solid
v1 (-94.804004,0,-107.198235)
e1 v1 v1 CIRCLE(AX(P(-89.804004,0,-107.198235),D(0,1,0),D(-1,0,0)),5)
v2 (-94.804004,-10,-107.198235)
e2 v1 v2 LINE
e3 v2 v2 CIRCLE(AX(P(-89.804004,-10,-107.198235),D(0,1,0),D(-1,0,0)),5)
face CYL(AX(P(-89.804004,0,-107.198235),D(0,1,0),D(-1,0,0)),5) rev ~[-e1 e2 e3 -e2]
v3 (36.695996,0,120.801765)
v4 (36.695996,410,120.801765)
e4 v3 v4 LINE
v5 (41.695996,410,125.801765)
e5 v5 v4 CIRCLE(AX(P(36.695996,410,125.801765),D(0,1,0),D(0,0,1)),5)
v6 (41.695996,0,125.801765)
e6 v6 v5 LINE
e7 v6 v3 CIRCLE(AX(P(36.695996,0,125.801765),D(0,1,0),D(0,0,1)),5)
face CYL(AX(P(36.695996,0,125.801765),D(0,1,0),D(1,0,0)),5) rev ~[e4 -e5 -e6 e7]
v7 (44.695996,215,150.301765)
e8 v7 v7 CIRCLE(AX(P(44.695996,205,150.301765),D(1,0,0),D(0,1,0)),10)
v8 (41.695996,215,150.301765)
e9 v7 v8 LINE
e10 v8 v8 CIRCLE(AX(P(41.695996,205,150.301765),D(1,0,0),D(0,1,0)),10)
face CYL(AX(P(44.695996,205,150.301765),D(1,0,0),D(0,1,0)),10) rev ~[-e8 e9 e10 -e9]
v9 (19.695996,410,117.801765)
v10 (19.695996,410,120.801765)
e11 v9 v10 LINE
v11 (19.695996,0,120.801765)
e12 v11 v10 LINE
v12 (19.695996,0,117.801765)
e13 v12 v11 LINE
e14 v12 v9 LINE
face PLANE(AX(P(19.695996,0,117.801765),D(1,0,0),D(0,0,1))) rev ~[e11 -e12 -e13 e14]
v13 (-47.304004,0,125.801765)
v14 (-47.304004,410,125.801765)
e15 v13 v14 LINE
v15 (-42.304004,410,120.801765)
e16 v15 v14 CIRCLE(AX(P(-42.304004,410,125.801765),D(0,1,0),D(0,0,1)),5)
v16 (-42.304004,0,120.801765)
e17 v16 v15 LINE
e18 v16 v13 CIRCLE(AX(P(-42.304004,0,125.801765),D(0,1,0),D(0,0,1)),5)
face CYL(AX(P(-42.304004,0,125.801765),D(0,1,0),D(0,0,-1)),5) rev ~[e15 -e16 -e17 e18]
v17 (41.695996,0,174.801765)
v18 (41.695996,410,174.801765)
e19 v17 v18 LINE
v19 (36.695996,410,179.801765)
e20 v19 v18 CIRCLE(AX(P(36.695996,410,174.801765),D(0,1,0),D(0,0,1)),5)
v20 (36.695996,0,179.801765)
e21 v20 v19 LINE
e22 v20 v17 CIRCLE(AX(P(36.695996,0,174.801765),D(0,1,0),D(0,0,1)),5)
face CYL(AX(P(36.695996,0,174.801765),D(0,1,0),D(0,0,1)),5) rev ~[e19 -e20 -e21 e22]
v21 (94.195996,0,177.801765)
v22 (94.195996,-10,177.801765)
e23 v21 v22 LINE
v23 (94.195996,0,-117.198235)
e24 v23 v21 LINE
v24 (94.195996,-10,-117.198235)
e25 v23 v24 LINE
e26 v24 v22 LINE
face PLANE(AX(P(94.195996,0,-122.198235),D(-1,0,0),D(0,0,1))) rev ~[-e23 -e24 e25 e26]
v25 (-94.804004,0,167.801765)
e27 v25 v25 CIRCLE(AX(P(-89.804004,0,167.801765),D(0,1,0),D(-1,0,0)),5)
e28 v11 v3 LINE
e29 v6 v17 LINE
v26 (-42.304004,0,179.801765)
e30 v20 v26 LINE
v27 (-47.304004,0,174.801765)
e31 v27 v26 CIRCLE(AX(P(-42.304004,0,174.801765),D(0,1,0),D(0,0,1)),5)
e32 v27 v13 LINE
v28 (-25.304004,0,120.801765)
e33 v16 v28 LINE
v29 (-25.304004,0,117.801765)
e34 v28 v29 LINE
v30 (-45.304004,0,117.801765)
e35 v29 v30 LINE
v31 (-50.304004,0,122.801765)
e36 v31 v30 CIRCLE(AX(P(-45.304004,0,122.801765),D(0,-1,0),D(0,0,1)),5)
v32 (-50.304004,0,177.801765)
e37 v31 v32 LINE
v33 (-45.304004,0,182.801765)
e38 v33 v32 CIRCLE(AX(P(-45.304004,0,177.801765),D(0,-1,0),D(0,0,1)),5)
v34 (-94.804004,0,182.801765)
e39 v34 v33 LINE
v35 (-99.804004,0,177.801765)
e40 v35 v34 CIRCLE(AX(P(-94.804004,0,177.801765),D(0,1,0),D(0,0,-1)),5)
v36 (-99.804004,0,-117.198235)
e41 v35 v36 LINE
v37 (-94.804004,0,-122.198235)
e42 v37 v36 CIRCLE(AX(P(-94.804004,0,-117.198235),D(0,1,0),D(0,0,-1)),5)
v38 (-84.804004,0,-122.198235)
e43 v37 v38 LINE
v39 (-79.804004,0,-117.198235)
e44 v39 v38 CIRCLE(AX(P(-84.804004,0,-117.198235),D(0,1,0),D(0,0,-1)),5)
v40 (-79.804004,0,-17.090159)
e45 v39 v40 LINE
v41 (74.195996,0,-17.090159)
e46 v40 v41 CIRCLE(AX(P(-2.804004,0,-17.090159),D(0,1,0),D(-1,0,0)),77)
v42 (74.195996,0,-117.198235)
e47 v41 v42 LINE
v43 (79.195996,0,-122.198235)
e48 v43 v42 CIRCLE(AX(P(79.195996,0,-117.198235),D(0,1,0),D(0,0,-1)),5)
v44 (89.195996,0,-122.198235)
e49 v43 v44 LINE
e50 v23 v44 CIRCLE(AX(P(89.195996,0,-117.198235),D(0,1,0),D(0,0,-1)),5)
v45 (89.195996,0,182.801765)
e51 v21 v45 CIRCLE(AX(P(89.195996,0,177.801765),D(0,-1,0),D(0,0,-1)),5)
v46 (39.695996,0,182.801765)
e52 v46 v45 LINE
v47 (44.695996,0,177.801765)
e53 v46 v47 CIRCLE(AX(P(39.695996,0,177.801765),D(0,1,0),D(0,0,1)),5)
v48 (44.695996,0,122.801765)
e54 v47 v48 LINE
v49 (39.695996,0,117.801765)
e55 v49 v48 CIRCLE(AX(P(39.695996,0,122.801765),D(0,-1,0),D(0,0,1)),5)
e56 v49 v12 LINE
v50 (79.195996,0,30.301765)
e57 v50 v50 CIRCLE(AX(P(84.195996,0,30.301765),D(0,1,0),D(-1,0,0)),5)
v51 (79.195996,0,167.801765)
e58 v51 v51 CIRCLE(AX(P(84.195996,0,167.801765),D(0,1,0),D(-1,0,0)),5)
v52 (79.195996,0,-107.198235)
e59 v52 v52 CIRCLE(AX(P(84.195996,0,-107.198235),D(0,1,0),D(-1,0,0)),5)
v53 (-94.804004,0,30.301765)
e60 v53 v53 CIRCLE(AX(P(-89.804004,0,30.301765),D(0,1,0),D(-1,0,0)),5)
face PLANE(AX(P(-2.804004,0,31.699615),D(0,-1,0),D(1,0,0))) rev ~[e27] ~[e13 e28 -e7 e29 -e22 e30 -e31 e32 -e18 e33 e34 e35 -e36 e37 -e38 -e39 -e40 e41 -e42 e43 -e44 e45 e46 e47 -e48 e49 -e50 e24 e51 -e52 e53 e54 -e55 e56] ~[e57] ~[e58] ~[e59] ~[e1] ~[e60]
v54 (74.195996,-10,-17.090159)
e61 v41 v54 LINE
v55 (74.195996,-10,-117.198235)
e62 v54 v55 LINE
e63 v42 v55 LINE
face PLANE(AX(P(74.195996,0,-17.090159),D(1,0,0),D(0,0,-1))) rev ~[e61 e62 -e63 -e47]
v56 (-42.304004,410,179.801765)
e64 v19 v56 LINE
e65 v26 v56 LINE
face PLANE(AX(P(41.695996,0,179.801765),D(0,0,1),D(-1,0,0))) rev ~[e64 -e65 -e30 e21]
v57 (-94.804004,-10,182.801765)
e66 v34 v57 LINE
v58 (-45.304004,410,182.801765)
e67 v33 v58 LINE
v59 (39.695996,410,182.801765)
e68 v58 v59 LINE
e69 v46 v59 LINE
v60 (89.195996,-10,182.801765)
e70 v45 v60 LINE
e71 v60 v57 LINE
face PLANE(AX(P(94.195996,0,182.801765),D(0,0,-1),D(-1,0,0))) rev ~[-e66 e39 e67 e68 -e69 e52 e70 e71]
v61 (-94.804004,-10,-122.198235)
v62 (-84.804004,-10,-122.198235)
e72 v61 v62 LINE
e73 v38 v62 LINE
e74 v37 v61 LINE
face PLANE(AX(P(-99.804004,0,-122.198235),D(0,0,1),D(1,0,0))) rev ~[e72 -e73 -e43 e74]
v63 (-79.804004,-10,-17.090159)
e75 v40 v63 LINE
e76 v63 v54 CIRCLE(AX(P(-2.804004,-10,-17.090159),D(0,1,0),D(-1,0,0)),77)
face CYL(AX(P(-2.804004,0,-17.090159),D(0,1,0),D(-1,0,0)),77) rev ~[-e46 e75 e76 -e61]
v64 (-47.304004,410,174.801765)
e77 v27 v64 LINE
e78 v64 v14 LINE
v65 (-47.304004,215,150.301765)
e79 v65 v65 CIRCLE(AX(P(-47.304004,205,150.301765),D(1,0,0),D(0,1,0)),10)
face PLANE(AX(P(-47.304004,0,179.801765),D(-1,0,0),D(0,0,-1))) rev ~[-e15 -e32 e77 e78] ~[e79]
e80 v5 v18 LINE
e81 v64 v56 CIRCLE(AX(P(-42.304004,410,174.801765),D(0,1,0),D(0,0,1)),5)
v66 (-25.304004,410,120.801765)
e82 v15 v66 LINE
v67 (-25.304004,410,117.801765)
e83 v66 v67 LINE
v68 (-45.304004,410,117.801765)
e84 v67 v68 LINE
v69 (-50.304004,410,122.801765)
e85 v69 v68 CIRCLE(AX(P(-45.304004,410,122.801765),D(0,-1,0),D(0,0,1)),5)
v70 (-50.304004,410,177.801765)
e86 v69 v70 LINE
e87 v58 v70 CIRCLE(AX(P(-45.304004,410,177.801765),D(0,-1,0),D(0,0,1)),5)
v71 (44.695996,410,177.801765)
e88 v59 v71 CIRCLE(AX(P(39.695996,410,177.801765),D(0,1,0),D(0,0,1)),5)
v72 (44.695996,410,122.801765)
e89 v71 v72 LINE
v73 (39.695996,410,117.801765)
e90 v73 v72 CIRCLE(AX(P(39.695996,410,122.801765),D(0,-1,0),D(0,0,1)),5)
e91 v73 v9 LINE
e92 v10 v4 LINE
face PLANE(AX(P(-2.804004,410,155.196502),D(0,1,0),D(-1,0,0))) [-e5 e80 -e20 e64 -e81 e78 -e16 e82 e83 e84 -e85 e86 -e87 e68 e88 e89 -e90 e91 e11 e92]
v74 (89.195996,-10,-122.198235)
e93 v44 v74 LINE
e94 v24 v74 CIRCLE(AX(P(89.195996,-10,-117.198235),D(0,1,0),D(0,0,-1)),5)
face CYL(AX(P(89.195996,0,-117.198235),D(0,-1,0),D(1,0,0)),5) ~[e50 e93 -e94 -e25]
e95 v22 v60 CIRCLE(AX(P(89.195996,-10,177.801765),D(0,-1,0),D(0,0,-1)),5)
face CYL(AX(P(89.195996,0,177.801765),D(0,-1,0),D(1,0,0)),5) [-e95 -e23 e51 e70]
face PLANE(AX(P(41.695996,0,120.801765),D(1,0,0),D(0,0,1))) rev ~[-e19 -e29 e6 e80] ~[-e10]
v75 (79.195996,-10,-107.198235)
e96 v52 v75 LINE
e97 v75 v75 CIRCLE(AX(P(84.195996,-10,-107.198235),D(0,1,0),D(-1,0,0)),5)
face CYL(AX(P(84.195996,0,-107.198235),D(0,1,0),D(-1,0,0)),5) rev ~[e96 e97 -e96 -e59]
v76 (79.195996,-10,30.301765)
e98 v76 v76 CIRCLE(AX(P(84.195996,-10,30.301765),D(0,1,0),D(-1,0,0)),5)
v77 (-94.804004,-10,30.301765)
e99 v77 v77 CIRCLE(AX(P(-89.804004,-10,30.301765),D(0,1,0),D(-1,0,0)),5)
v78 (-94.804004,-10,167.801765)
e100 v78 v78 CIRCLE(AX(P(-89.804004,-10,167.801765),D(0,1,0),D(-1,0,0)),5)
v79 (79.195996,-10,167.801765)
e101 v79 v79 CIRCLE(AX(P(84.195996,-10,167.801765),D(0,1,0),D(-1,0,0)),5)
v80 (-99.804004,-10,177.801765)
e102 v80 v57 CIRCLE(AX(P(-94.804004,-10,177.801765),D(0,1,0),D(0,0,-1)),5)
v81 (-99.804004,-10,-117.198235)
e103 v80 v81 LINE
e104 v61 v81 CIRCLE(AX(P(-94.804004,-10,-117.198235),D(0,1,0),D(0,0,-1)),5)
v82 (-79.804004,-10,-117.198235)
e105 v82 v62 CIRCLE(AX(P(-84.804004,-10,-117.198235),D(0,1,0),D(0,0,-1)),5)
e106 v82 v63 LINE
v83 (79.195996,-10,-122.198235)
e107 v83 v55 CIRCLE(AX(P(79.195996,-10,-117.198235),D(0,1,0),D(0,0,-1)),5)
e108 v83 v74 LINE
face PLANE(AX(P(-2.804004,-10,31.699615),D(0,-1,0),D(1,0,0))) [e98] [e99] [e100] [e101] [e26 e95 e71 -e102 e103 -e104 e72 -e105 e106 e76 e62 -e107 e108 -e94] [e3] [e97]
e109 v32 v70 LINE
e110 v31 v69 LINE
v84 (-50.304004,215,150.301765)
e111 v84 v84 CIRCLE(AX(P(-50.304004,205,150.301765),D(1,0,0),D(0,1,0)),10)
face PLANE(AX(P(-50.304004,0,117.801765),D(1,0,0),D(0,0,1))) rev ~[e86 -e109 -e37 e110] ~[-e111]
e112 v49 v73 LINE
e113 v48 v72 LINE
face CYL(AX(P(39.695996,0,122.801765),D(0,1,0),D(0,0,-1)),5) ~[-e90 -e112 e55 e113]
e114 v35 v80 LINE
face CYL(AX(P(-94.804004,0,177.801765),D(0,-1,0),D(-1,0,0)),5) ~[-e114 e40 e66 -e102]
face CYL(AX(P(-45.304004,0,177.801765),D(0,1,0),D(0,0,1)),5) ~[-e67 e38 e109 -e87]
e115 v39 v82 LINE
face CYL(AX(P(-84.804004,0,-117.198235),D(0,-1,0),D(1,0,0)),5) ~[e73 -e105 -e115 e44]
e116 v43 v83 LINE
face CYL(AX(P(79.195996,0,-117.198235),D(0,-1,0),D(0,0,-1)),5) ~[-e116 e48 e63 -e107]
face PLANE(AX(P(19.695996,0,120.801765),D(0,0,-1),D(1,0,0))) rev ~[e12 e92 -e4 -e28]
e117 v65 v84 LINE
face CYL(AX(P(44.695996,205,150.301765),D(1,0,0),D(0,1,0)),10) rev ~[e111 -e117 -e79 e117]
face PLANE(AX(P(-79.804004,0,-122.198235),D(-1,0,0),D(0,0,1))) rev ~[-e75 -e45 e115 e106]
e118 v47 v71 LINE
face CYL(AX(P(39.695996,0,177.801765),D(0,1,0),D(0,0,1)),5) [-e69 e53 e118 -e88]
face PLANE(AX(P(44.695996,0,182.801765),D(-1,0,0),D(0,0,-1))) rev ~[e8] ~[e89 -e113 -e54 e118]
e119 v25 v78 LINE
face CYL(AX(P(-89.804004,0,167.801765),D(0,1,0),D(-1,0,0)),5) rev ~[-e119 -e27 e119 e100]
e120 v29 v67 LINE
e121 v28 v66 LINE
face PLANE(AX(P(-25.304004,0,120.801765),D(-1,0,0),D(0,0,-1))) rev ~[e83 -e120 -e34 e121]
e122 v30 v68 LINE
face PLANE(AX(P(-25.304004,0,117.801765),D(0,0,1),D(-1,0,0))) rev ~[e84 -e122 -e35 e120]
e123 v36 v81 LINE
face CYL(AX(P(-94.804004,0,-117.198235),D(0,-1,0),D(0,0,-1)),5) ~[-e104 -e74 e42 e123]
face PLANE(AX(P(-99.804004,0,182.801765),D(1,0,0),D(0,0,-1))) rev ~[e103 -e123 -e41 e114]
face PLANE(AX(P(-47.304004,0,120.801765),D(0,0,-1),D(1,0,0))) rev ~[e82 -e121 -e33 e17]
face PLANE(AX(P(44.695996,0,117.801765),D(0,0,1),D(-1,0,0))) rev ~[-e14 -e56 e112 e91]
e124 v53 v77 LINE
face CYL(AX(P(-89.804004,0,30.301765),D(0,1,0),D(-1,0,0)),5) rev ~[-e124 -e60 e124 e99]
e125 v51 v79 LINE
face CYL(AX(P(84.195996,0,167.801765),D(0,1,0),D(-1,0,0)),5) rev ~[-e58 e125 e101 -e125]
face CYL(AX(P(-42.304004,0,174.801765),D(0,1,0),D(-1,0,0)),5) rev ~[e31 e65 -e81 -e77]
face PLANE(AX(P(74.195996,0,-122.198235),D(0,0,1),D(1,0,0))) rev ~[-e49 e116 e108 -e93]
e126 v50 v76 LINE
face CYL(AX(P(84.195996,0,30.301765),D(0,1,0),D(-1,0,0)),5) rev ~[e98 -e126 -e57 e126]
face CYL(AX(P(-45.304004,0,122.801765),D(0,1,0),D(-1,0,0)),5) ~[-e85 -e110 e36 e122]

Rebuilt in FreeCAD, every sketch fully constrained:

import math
import FreeCAD as App
import Part
import Sketcher
Q = App.Units.Quantity


def edges_at(feature, points):
    """Names of the edges that pass closest to the given points."""
    edges = feature.Shape.Edges
    near = lambda p: min(range(len(edges)), key=lambda i: edges[i].distToShape(Part.Vertex(*p))[0])
    return sorted({f"Edge{near(p) + 1}" for p in points})

doc = App.newDocument("Part")
body = doc.addObject("PartDesign::Body", "Body")

# Sketch on XZ plane
sketch1 = body.newObject("Sketcher::SketchObject", "Sketch")
sketch1.AttachmentSupport = (doc.getObject("XZ_Plane"), [""])
sketch1.MapMode = "FlatFace"
sketch1.addGeometry([
    Part.LineSegment(App.Vector(-80, -122, 0), App.Vector(-80, -17, 0)),  # 0
    Part.ArcOfCircle(Part.Circle(App.Vector(-3, -17, 0), App.Vector(0, 0, 1), 77), math.radians(0), math.radians(180)),  # 1
    Part.LineSegment(App.Vector(74, -17, 0), App.Vector(74, -122, 0)),  # 2
    Part.LineSegment(App.Vector(74, -122, 0), App.Vector(94, -122, 0)),  # 3
    Part.LineSegment(App.Vector(94, -122, 0), App.Vector(94, 183, 0)),  # 4
    Part.LineSegment(App.Vector(94, 183, 0), App.Vector(-100, 183, 0)),  # 5
    Part.LineSegment(App.Vector(-100, 183, 0), App.Vector(-100, -122, 0)),  # 6
    Part.LineSegment(App.Vector(-100, -122, 0), App.Vector(-80, -122, 0)),  # 7
], False)
sketch1.addConstraint([
    Sketcher.Constraint("Tangent", 0, 2, 1, 2),
    Sketcher.Constraint("Tangent", 1, 1, 2, 1),
    Sketcher.Constraint("Coincident", 2, 2, 3, 1),
    Sketcher.Constraint("Coincident", 3, 2, 4, 1),
    Sketcher.Constraint("Coincident", 4, 2, 5, 1),
    Sketcher.Constraint("Coincident", 5, 2, 6, 1),
    Sketcher.Constraint("Coincident", 6, 2, 7, 1),
    Sketcher.Constraint("Coincident", 7, 2, 0, 1),
    Sketcher.Constraint("Vertical", 0),
    Sketcher.Constraint("Vertical", 2),
    Sketcher.Constraint("Horizontal", 3),
    Sketcher.Constraint("Vertical", 4),
    Sketcher.Constraint("Horizontal", 5),
    Sketcher.Constraint("Vertical", 6),
    Sketcher.Constraint("Horizontal", 7),
    Sketcher.Constraint("Horizontal", 3, 2, 6, 2),
    Sketcher.Constraint("Equal", 3, 7),
    Sketcher.Constraint("Radius", 1, Q("77 mm")),
    Sketcher.Constraint("DistanceX", 3, 1, 3, 2, Q("20 mm")),
    Sketcher.Constraint("DistanceY", 4, 1, 4, 2, Q("305 mm")),
    Sketcher.Constraint("DistanceY", 0, 1, 0, 2, Q("105.108076 mm")),
    Sketcher.Constraint("DistanceY", 1, 3, -1, 1, Q("17.090159 mm")),
    Sketcher.Constraint("DistanceX", 1, 3, -1, 1, Q("2.804004 mm")),
])
pad1 = body.newObject("PartDesign::Pad", "Pad")
pad1.Profile = sketch1
pad1.Length = 10

# Sketch on XZ plane
sketch2 = body.newObject("Sketcher::SketchObject", "Sketch001")
sketch2.AttachmentSupport = (doc.getObject("XZ_Plane"), [""])
sketch2.MapMode = "FlatFace"
sketch2.addGeometry([
    Part.LineSegment(App.Vector(-50.3, 117.8, 0), App.Vector(-50.3, 182.8, 0)),  # 0
    Part.LineSegment(App.Vector(-50.3, 182.8, 0), App.Vector(44.7, 182.8, 0)),  # 1
    Part.LineSegment(App.Vector(44.7, 182.8, 0), App.Vector(44.7, 117.8, 0)),  # 2
    Part.LineSegment(App.Vector(44.7, 117.8, 0), App.Vector(19.7, 117.8, 0)),  # 3
    Part.LineSegment(App.Vector(19.7, 117.8, 0), App.Vector(19.7, 120.8, 0)),  # 4
    Part.LineSegment(App.Vector(19.7, 120.8, 0), App.Vector(41.7, 120.8, 0)),  # 5
    Part.LineSegment(App.Vector(41.7, 120.8, 0), App.Vector(41.7, 179.8, 0)),  # 6
    Part.LineSegment(App.Vector(41.7, 179.8, 0), App.Vector(-47.3, 179.8, 0)),  # 7
    Part.LineSegment(App.Vector(-47.3, 179.8, 0), App.Vector(-47.3, 120.8, 0)),  # 8
    Part.LineSegment(App.Vector(-47.3, 120.8, 0), App.Vector(-25.3, 120.8, 0)),  # 9
    Part.LineSegment(App.Vector(-25.3, 120.8, 0), App.Vector(-25.3, 117.8, 0)),  # 10
    Part.LineSegment(App.Vector(-25.3, 117.8, 0), App.Vector(-50.3, 117.8, 0)),  # 11
], False)
sketch2.addConstraint([
    Sketcher.Constraint("Coincident", 0, 2, 1, 1),
    Sketcher.Constraint("Coincident", 1, 2, 2, 1),
    Sketcher.Constraint("Coincident", 2, 2, 3, 1),
    Sketcher.Constraint("Coincident", 3, 2, 4, 1),
    Sketcher.Constraint("Coincident", 4, 2, 5, 1),
    Sketcher.Constraint("Coincident", 5, 2, 6, 1),
    Sketcher.Constraint("Coincident", 6, 2, 7, 1),
    Sketcher.Constraint("Coincident", 7, 2, 8, 1),
    Sketcher.Constraint("Coincident", 8, 2, 9, 1),
    Sketcher.Constraint("Coincident", 9, 2, 10, 1),
    Sketcher.Constraint("Coincident", 10, 2, 11, 1),
    Sketcher.Constraint("Coincident", 11, 2, 0, 1),
    Sketcher.Constraint("Vertical", 0),
    Sketcher.Constraint("Horizontal", 1),
    Sketcher.Constraint("Vertical", 2),
    Sketcher.Constraint("Horizontal", 3),
    Sketcher.Constraint("Vertical", 4),
    Sketcher.Constraint("Horizontal", 5),
    Sketcher.Constraint("Vertical", 6),
    Sketcher.Constraint("Horizontal", 7),
    Sketcher.Constraint("Vertical", 8),
    Sketcher.Constraint("Horizontal", 9),
    Sketcher.Constraint("Vertical", 10),
    Sketcher.Constraint("Horizontal", 11),
    Sketcher.Constraint("Horizontal", 5, 2, 8, 2),
    Sketcher.Constraint("Horizontal", 3, 2, 10, 2),
    Sketcher.Constraint("Equal", 5, 9),
    Sketcher.Constraint("Equal", 3, 11),
    Sketcher.Constraint("DistanceX", 1, 1, 1, 2, Q("95 mm")),
    Sketcher.Constraint("DistanceX", 3, 2, 3, 1, Q("25 mm")),
    Sketcher.Constraint("DistanceX", 5, 1, 5, 2, Q("22 mm")),
    Sketcher.Constraint("DistanceY", 0, 1, 0, 2, Q("65 mm")),
    Sketcher.Constraint("DistanceY", 4, 1, 4, 2, Q("3 mm")),
    Sketcher.Constraint("DistanceY", 6, 1, 6, 2, Q("59 mm")),
    Sketcher.Constraint("DistanceX", 0, 2, -1, 1, Q("50.304004 mm")),
    Sketcher.Constraint("DistanceY", -1, 1, 0, 2, Q("182.801765 mm")),
])
pad2 = body.newObject("PartDesign::Pad", "Pad001")
pad2.Profile = sketch2
pad2.Length = 410
pad2.Reversed = True
doc.recompute()

fillet = body.newObject("PartDesign::Fillet", "Fillet")
fillet.Base = (pad2, edges_at(pad2, [
    (44.696, 205, 182.802),
    (-50.304, 205, 182.802),
    (-50.304, 205, 117.802),
    (44.696, 205, 117.802),
    (-47.304, 205, 179.802),
    (-47.304, 205, 120.802),
    (41.696, 205, 120.802),
    (41.696, 205, 179.802),
]))
fillet.Radius = 5
doc.recompute()

fillet2 = body.newObject("PartDesign::Fillet", "Fillet001")
fillet2.Base = (fillet, edges_at(fillet, [
    (-99.804, -5, -122.198),
    (-99.804, -5, 182.802),
    (94.196, -5, 182.802),
    (94.196, -5, -122.198),
    (74.196, -5, -122.198),
    (-79.804, -5, -122.198),
]))
fillet2.Radius = 5

# Sketch on XZ plane
sketch3 = body.newObject("Sketcher::SketchObject", "Sketch002")
sketch3.AttachmentSupport = (doc.getObject("XZ_Plane"), [""])
sketch3.MapMode = "FlatFace"
sketch3.addGeometry([
    Part.Circle(App.Vector(84, 168, 0), App.Vector(0, 0, 1), 5),  # 0
    Part.Circle(App.Vector(84, 30, 0), App.Vector(0, 0, 1), 5),  # 1
    Part.Circle(App.Vector(84, -107, 0), App.Vector(0, 0, 1), 5),  # 2
    Part.Circle(App.Vector(-90, 168, 0), App.Vector(0, 0, 1), 5),  # 3
    Part.Circle(App.Vector(-90, 30, 0), App.Vector(0, 0, 1), 5),  # 4
    Part.Circle(App.Vector(-90, -107, 0), App.Vector(0, 0, 1), 5),  # 5
], False)
sketch3.addConstraint([
    Sketcher.Constraint("Equal", 0, 1),
    Sketcher.Constraint("Equal", 1, 2),
    Sketcher.Constraint("Equal", 2, 3),
    Sketcher.Constraint("Equal", 3, 4),
    Sketcher.Constraint("Equal", 4, 5),
    Sketcher.Constraint("Horizontal", 0, 3, 3, 3),
    Sketcher.Constraint("Horizontal", 1, 3, 4, 3),
    Sketcher.Constraint("Horizontal", 2, 3, 5, 3),
    Sketcher.Constraint("Vertical", 0, 3, 1, 3),
    Sketcher.Constraint("Vertical", 1, 3, 2, 3),
    Sketcher.Constraint("Vertical", 3, 3, 4, 3),
    Sketcher.Constraint("Vertical", 4, 3, 5, 3),
    Sketcher.Constraint("Diameter", 0, Q("10 mm")),
    Sketcher.Constraint("DistanceY", 2, 3, 0, 3, Q("275 mm")),
    Sketcher.Constraint("DistanceX", 3, 3, 0, 3, Q("174 mm")),
    Sketcher.Constraint("DistanceY", 1, 3, 0, 3, Q("137.5 mm")),
    Sketcher.Constraint("DistanceX", -1, 1, 0, 3, Q("84.195996 mm")),
    Sketcher.Constraint("DistanceY", -1, 1, 0, 3, Q("167.801765 mm")),
])
pocket1 = body.newObject("PartDesign::Pocket", "Pocket")
pocket1.Profile = sketch3
pocket1.Type = "ThroughAll"
pocket1.Reversed = True

# Sketch on YZ plane
sketch4 = body.newObject("Sketcher::SketchObject", "Sketch003")
sketch4.AttachmentSupport = (doc.getObject("YZ_Plane"), [""])
sketch4.MapMode = "FlatFace"
sketch4.AttachmentOffset = App.Placement(App.Vector(0, 0, 44.695996), App.Rotation())
sketch4.addGeometry(Part.Circle(App.Vector(205, 150, 0), App.Vector(0, 0, 1), 10), False)
sketch4.addConstraint([
    Sketcher.Constraint("Diameter", 0, Q("20 mm")),
    Sketcher.Constraint("DistanceX", -1, 1, 0, 3, Q("205 mm")),
    Sketcher.Constraint("DistanceY", -1, 1, 0, 3, Q("150.301765 mm")),
])
pocket2 = body.newObject("PartDesign::Pocket", "Pocket001")
pocket2.Profile = sketch4
pocket2.Type = "ThroughAll"

doc.recompute()
